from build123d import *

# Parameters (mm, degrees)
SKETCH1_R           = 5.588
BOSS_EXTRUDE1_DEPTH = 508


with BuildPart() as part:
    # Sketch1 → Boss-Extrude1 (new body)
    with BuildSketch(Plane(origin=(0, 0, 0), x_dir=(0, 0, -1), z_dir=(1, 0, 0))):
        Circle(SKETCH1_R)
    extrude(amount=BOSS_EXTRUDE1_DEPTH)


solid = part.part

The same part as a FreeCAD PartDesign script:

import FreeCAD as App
import Part
import Sketcher
Q = App.Units.Quantity

doc = App.newDocument("Part")
body = doc.addObject("PartDesign::Body", "Body")

sketch1 = body.newObject("Sketcher::SketchObject", "Sketch")
sketch1.AttachmentSupport = (doc.getObject("YZ_Plane"), [""])
sketch1.MapMode = "FlatFace"
sketch1.addGeometry(Part.Circle(App.Vector(0, 0, 0), App.Vector(0, 0, 1), 6), False)
sketch1.addConstraint(Sketcher.Constraint("Coincident", 0, 3, -1, 1))
sketch1.addConstraint(Sketcher.Constraint("Diameter", 0, Q("0.44 in")))
pad1 = body.newObject("PartDesign::Pad", "Pad")
pad1.Profile = sketch1
pad1.Length = Q("20 in")

doc.recompute()
